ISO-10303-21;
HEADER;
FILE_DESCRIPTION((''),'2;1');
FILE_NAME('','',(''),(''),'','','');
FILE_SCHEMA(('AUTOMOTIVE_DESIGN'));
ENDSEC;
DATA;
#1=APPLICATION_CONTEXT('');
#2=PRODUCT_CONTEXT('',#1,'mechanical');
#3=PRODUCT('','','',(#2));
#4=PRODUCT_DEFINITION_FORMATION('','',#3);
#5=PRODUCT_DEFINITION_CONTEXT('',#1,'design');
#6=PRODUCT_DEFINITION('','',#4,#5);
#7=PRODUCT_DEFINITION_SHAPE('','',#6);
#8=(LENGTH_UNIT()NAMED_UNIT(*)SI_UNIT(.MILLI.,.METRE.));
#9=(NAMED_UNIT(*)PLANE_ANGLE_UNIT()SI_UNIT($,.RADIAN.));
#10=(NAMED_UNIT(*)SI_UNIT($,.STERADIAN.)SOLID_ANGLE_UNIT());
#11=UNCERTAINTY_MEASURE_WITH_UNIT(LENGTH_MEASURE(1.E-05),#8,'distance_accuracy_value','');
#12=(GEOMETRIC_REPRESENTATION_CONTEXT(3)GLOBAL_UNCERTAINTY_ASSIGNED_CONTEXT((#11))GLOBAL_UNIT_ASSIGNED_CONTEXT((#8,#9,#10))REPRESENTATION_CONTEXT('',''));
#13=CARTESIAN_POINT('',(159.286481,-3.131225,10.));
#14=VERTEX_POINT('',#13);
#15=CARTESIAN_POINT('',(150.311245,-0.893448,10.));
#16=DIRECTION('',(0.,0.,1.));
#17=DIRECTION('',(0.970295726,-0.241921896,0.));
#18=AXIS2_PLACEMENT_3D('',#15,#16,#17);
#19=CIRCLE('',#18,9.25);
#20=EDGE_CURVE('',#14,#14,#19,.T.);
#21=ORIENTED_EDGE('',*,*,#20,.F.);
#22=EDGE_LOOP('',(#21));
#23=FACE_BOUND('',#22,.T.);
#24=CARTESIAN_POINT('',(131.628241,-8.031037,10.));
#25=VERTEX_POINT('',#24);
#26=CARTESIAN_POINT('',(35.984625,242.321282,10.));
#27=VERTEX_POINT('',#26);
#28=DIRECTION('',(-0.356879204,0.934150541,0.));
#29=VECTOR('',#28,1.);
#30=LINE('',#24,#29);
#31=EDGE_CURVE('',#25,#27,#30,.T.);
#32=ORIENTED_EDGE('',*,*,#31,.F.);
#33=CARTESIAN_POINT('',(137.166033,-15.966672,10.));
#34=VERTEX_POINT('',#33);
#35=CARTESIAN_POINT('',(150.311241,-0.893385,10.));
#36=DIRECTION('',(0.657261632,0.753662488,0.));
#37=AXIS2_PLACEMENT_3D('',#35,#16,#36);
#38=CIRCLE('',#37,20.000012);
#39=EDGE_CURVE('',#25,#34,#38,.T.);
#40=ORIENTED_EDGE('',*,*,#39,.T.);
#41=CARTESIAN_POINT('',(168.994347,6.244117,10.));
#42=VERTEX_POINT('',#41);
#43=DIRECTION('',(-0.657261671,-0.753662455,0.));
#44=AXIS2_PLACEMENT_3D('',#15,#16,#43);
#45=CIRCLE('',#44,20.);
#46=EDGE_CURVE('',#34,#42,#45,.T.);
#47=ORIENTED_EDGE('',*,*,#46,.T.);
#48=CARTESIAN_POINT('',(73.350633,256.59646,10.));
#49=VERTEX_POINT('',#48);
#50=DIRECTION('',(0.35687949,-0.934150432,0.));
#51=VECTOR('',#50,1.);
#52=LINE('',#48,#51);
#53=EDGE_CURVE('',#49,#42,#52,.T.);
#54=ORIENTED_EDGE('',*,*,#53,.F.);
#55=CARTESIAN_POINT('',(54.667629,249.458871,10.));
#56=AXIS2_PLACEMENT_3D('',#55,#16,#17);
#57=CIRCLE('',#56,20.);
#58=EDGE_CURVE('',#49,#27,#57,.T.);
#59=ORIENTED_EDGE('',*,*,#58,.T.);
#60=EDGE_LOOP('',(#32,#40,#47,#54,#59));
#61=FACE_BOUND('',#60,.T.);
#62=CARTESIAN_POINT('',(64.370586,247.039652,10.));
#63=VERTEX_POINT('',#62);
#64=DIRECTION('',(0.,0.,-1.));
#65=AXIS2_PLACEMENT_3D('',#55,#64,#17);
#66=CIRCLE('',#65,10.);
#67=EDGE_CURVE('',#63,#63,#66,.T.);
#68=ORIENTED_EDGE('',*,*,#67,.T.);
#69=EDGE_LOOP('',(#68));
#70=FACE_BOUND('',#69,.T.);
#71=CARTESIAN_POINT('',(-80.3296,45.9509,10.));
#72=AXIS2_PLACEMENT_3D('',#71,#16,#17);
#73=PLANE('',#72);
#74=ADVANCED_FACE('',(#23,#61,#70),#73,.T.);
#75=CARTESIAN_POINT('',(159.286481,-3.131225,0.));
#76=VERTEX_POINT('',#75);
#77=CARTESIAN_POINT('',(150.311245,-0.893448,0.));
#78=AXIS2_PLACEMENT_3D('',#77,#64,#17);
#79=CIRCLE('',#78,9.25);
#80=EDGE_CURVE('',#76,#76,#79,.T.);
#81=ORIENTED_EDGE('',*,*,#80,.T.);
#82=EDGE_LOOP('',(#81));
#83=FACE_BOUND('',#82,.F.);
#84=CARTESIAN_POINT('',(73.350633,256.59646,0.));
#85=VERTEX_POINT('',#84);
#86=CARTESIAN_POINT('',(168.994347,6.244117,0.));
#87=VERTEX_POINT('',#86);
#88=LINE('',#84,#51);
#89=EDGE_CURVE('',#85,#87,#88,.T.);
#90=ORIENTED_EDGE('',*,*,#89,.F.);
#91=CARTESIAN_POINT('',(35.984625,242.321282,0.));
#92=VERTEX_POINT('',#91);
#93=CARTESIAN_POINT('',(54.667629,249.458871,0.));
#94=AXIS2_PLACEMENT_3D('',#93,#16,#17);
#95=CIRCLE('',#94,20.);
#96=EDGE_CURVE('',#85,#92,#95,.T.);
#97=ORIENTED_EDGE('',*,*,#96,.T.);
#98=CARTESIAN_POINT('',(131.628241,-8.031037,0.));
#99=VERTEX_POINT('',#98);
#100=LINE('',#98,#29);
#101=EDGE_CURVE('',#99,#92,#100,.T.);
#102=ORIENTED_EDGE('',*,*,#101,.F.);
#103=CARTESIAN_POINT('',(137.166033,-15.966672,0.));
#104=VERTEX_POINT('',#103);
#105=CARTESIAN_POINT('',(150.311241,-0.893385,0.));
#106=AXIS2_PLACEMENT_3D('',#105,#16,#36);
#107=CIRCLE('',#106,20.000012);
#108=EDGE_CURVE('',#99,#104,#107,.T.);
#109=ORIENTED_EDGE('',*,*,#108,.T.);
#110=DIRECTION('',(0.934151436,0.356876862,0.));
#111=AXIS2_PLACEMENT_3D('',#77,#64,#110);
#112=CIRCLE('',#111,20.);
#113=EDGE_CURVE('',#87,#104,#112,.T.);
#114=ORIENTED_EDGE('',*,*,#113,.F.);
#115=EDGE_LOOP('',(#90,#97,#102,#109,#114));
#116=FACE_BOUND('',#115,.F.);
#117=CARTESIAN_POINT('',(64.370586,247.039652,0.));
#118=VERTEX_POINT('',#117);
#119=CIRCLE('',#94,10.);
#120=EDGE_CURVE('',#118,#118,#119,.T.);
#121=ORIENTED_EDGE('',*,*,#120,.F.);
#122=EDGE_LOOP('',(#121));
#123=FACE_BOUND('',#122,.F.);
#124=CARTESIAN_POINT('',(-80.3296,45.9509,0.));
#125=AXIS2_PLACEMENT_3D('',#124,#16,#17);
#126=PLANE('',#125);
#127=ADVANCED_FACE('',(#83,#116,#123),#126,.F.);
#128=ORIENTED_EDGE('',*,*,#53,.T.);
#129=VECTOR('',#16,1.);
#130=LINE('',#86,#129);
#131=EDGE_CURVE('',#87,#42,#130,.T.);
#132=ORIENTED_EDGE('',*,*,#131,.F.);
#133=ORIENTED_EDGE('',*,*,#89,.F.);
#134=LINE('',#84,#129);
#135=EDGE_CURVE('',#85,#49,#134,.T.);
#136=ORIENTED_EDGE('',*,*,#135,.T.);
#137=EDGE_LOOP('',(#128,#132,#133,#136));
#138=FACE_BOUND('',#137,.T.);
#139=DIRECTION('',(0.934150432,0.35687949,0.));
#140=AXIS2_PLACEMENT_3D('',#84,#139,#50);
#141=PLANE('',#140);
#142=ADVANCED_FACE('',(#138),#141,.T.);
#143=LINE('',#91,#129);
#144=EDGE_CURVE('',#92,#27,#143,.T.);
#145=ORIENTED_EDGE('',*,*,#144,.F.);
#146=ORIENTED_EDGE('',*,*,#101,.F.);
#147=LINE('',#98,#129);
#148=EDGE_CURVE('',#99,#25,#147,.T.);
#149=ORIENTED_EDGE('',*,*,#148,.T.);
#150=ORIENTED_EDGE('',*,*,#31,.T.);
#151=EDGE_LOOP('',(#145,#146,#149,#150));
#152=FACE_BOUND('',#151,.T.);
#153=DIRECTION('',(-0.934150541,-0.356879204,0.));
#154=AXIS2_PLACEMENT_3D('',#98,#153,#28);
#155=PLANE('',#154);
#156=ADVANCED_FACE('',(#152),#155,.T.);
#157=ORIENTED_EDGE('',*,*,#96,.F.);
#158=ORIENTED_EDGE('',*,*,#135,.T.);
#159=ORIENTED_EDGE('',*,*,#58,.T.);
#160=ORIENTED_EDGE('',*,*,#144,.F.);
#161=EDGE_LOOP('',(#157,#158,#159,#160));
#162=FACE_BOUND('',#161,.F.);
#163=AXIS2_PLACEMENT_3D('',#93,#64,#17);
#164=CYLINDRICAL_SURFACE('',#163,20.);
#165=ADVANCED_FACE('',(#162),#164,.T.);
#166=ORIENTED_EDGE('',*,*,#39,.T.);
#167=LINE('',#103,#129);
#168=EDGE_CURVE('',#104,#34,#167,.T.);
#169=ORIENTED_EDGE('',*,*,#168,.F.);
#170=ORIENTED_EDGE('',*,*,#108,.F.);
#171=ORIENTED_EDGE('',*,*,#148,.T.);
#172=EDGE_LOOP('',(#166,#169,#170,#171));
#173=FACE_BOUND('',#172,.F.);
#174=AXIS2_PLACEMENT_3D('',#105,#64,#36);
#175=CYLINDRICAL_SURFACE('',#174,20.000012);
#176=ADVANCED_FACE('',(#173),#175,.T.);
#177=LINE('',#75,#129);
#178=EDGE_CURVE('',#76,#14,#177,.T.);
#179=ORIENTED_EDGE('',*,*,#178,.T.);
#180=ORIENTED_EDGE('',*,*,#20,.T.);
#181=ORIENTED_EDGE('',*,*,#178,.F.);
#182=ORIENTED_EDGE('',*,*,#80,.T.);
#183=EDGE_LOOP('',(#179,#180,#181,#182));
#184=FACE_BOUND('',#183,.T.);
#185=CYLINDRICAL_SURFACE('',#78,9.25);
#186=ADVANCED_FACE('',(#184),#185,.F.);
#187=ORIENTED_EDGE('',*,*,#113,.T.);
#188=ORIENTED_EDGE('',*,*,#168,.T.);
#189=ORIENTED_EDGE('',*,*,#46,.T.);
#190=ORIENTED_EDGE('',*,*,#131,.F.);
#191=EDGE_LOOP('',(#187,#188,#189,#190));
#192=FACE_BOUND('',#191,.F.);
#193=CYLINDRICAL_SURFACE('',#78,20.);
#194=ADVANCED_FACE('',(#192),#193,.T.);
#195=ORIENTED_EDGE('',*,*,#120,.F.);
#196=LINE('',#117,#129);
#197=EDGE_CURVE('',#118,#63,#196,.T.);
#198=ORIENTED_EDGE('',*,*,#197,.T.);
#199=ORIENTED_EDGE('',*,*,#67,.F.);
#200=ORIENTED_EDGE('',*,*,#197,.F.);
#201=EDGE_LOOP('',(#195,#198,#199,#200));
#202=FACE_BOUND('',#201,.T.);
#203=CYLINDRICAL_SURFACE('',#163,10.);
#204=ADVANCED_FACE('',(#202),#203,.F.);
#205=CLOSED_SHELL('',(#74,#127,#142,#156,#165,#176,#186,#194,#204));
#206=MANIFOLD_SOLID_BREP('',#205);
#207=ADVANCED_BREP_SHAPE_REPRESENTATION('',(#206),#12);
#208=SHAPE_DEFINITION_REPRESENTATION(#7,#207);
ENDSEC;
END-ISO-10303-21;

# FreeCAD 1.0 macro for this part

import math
import FreeCAD as App
import Part
import Sketcher
Q = App.Units.Quantity

doc = App.newDocument("Part")
params = doc.addObject("Spreadsheet::Sheet", "Params")
for row, (alias, value) in enumerate([
    ("sketch1_diameter", "20 mm"),
    ("sketch1_radius", "20 mm"),
    ("sketch1_length", "268 mm"),
    ("sketch1_diameter2", "18.5 mm"),
    ("pad1_length", "10 mm"),
], start=1):
    params.set(f"A{row}", alias)
    params.set(f"B{row}", "=" + value)
    params.setAlias(f"B{row}", alias)

body = doc.addObject("PartDesign::Body", "Body")

# Sketch on XY plane
sketch1 = doc.addObject("Sketcher::SketchObject", "Sketch")
body.addObject(sketch1)
sketch1.AttachmentSupport = (doc.XY_Plane, [""])
sketch1.MapMode = "FlatFace"
sketch1.addGeometry([
    Part.ArcOfCircle(Part.Circle(App.Vector(150, -1, 0), App.Vector(0, 0, 1), 20), math.radians(-131), math.radians(21)),  # 0
    Part.LineSegment(App.Vector(169, 6, 0), App.Vector(73, 257, 0)),  # 1
    Part.ArcOfCircle(Part.Circle(App.Vector(55, 249, 0), App.Vector(0, 0, 1), 20), math.radians(21), math.radians(201)),  # 2
    Part.LineSegment(App.Vector(36, 242, 0), App.Vector(132, -8, 0)),  # 3
    Part.ArcOfCircle(Part.Circle(App.Vector(150, -1, 0), App.Vector(0, 0, 1), 20), math.radians(-159), math.radians(-131)),  # 4
    Part.Circle(App.Vector(150, -1, 0), App.Vector(0, 0, 1), 9),  # 5
    Part.Circle(App.Vector(55, 249, 0), App.Vector(0, 0, 1), 10),  # 6
], False)
sketch1.addConstraint([
    Sketcher.Constraint("Tangent", 0, 2, 1, 1),
    Sketcher.Constraint("Tangent", 1, 2, 2, 1),
    Sketcher.Constraint("Tangent", 2, 2, 3, 1),
    Sketcher.Constraint("Tangent", 3, 2, 4, 1),
    Sketcher.Constraint("Tangent", 4, 2, 0, 1),
    Sketcher.Constraint("Coincident", 5, 3, 0, 3),
    Sketcher.Constraint("Coincident", 6, 3, 2, 3),
    Sketcher.Constraint("Equal", 0, 2),
    Sketcher.Constraint("Equal", 2, 4),
    Sketcher.Constraint("Diameter", 6, Q("20 mm")),
    Sketcher.Constraint("Radius", 0, Q("20 mm")),
    Sketcher.Constraint("Distance", 1, Q("268 mm")),
    Sketcher.Constraint("Diameter", 5, Q("18.5 mm")),
    Sketcher.Constraint("DistanceY", 0, 3, 1, 2, Q("257.49 mm")),
    Sketcher.Constraint("DistanceY", -1, 1, 0, 2, Q("6.244 mm")),
    Sketcher.Constraint("DistanceX", -1, 1, 4, 2, Q("137.166 mm")),
    Sketcher.Constraint("DistanceX", -1, 1, 0, 3, Q("150.3112 mm")),
])
sketch1.setExpression("Constraints[9]", "Params.sketch1_diameter")
sketch1.setExpression("Constraints[10]", "Params.sketch1_radius")
sketch1.setExpression("Constraints[11]", "Params.sketch1_length")
sketch1.setExpression("Constraints[12]", "Params.sketch1_diameter2")
pad1 = doc.addObject("PartDesign::Pad", "Pad")
body.addObject(pad1)
pad1.Profile = sketch1
pad1.setExpression("Length", "Params.pad1_length")

doc.recompute()
